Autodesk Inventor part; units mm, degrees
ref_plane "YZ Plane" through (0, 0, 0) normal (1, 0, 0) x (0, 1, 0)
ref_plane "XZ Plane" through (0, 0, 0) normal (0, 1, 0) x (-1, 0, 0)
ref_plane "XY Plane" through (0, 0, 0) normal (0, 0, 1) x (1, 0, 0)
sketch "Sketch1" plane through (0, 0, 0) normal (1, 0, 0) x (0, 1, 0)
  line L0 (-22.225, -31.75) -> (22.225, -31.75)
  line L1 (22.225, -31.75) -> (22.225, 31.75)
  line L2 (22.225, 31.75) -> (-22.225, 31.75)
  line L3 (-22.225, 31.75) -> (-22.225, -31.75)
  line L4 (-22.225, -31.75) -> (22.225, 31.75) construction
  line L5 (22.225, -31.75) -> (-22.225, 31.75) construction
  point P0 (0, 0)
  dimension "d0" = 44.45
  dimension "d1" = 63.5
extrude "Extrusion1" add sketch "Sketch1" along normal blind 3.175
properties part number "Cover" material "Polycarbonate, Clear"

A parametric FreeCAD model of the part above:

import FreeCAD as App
import Part
import Sketcher
from FreeCAD import Vector
Q = App.Units.Quantity

doc = App.newDocument("Part")
body = doc.addObject("PartDesign::Body", "Body")

sketch1 = body.newObject("Sketcher::SketchObject", "Sketch")
sketch1.AttachmentSupport = (doc.getObject("YZ_Plane"), [""])
sketch1.MapMode = "FlatFace"
sketch1.addGeometry([
    Part.LineSegment(Vector(-22.225, 31.75, 0), Vector(-22.225, -31.75, 0)),
    Part.LineSegment(Vector(-22.225, -31.75, 0), Vector(22.225, -31.75, 0)),
    Part.LineSegment(Vector(22.225, -31.75, 0), Vector(22.225, 31.75, 0)),
    Part.LineSegment(Vector(22.225, 31.75, 0), Vector(-22.225, 31.75, 0)),
], False)
sketch1.addConstraint([
    Sketcher.Constraint("Coincident", 0, 2, 1, 1),
    Sketcher.Constraint("Coincident", 1, 2, 2, 1),
    Sketcher.Constraint("Coincident", 2, 2, 3, 1),
    Sketcher.Constraint("Coincident", 3, 2, 0, 1),
    Sketcher.Constraint("Vertical", 0),
    Sketcher.Constraint("Horizontal", 1),
    Sketcher.Constraint("Vertical", 2),
    Sketcher.Constraint("Horizontal", 3),
    Sketcher.Constraint("Symmetric", 0, 2, 2, 2, -1, 1),
    Sketcher.Constraint("DistanceY", 0, 2, 0, 1, Q("2.5 in")),
    Sketcher.Constraint("DistanceX", 1, 1, 1, 2, Q("1.75 in")),
])
pad1 = body.newObject("PartDesign::Pad", "Pad")
pad1.Profile = sketch1
pad1.Length = Q("0.125 in")

doc.recompute()
